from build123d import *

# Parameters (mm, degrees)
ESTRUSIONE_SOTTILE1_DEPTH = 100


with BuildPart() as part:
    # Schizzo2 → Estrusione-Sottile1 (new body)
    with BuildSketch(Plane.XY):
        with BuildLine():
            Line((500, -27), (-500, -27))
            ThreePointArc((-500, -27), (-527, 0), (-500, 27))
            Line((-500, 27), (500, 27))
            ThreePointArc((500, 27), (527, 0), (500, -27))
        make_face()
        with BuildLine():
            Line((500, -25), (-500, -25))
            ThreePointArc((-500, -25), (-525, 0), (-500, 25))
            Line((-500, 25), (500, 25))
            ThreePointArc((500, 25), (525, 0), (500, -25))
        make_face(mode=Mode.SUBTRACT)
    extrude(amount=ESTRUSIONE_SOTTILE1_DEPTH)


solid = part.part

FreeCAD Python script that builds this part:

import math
import FreeCAD as App
import Part
import Sketcher
Q = App.Units.Quantity

doc = App.newDocument("Part")
body = doc.addObject("PartDesign::Body", "Body")

sketch1 = body.newObject("Sketcher::SketchObject", "Sketch")
sketch1.AttachmentSupport = (doc.getObject("XY_Plane"), [""])
sketch1.MapMode = "FlatFace"
sketch1.addGeometry([
    Part.LineSegment(App.Vector(-500, -27, 0), App.Vector(500, -27, 0)),
    Part.ArcOfCircle(Part.Circle(App.Vector(500, 0, 0), App.Vector(0, 0, 1), 27), math.radians(-90), math.radians(90)),
    Part.LineSegment(App.Vector(500, 27, 0), App.Vector(-500, 27, 0)),
    Part.ArcOfCircle(Part.Circle(App.Vector(-500, 0, 0), App.Vector(0, 0, 1), 27), math.radians(90), math.radians(270)),
    Part.LineSegment(App.Vector(500, -25, 0), App.Vector(-500, -25, 0)),
    Part.ArcOfCircle(Part.Circle(App.Vector(-500, 0, 0), App.Vector(0, 0, 1), 25), math.radians(90), math.radians(270)),
    Part.LineSegment(App.Vector(-500, 25, 0), App.Vector(500, 25, 0)),
    Part.ArcOfCircle(Part.Circle(App.Vector(500, 0, 0), App.Vector(0, 0, 1), 25), math.radians(-90), math.radians(90)),
], False)
sketch1.addConstraint([
    Sketcher.Constraint("Tangent", 0, 2, 1, 1),
    Sketcher.Constraint("Tangent", 1, 2, 2, 1),
    Sketcher.Constraint("Tangent", 2, 2, 3, 1),
    Sketcher.Constraint("Tangent", 3, 2, 0, 1),
    Sketcher.Constraint("Tangent", 4, 2, 5, 2),
    Sketcher.Constraint("Tangent", 5, 1, 6, 1),
    Sketcher.Constraint("Tangent", 6, 2, 7, 2),
    Sketcher.Constraint("Tangent", 7, 1, 4, 1),
    Sketcher.Constraint("Horizontal", 0),
    Sketcher.Constraint("Horizontal", 2),
    Sketcher.Constraint("Horizontal", 4),
    Sketcher.Constraint("Horizontal", 6),
    Sketcher.Constraint("Coincident", 5, 3, 3, 3),
    Sketcher.Constraint("Symmetric", 1, 3, 3, 3, -1, 1),
    Sketcher.Constraint("Vertical", 7, 3, 0, 2),
    Sketcher.Constraint("Radius", 1, Q("27 mm")),
    Sketcher.Constraint("Radius", 5, Q("25 mm")),
    Sketcher.Constraint("DistanceX", 0, 1, 0, 2, Q("1000 mm")),
])
pad1 = body.newObject("PartDesign::Pad", "Pad")
pad1.Profile = sketch1
pad1.Length = 100

doc.recompute()
